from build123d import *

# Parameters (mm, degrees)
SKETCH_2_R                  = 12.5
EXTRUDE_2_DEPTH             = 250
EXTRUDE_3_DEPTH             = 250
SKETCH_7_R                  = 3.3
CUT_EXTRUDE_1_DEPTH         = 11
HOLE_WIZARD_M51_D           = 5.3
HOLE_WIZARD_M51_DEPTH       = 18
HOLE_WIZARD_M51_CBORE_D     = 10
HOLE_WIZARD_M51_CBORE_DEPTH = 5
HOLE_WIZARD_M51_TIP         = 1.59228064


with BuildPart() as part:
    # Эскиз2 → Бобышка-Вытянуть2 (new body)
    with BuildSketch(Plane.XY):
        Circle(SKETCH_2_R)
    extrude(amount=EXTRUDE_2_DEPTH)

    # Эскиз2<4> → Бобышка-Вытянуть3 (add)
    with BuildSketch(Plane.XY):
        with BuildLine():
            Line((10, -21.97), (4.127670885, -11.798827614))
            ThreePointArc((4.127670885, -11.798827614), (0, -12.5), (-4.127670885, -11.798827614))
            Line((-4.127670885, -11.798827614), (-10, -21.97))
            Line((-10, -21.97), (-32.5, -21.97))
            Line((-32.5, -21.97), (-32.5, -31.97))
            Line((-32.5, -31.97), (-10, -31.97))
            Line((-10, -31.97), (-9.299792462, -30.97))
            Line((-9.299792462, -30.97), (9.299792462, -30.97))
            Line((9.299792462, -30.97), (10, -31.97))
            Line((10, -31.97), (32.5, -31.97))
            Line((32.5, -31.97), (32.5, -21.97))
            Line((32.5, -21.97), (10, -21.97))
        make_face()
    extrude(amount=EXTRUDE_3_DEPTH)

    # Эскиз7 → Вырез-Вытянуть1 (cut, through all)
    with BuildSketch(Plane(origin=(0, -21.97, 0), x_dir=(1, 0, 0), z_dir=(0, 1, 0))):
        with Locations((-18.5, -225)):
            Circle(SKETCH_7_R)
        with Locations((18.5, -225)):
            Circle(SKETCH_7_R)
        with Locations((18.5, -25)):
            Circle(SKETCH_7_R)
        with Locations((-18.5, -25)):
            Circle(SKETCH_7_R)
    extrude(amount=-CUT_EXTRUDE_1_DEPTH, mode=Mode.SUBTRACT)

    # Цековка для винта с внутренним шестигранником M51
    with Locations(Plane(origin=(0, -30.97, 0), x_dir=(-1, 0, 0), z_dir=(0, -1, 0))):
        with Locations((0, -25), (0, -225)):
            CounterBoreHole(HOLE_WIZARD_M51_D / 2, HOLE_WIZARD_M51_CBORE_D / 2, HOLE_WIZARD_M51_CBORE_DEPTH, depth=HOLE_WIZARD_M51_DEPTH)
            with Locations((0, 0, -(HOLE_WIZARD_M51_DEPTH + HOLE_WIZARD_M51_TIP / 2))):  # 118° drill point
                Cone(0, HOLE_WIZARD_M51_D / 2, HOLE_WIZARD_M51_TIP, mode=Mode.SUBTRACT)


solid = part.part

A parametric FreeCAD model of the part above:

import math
import FreeCAD as App
import Part
import Sketcher

V = App.Vector
Q = App.Units.Quantity

doc = App.newDocument("Part")
params = doc.addObject("Spreadsheet::Sheet", "Params")
for row, (alias, value) in enumerate([
    ("sketch1_diameter", "25 mm"),
    ("pad1_length", "250 mm"),
    ("sketch2_radius", "12.5 mm"),
    ("sketch2_height", "10 mm"),
    ("sketch2_width", "22.5 mm"),
    ("pad2_length", "250 mm"),
    ("sketch3_diameter", "6.6 mm"),
    ("sketch4_diameter", "5.3 mm"),
    ("hole_diameter", "5.3 mm"),
    ("hole_depth", "18 mm"),
    ("hole_cbore_diameter", "10 mm"),
    ("hole_cbore_depth", "5 mm"),
], start=1):
    params.set(f"A{row}", alias)
    params.set(f"B{row}", "=" + value)
    params.setAlias(f"B{row}", alias)

body = doc.addObject("PartDesign::Body", "Body")

sketch1 = body.newObject("Sketcher::SketchObject", "Sketch")
sketch1.AttachmentSupport = (doc.getObject("XY_Plane"), [""])
sketch1.MapMode = "FlatFace"
sketch1.addGeometry(Part.Circle(V(0, 0, 0), V(0, 0, 1), 12.5), False)
sketch1.addConstraint(Sketcher.Constraint("Coincident", 0, 3, -1, 1))
sketch1.addConstraint(Sketcher.Constraint("Diameter", 0, Q("25 mm")))
sketch1.setExpression("Constraints[1]", "Params.sketch1_diameter")
pad1 = body.newObject("PartDesign::Pad", "Pad")
pad1.Profile = sketch1
pad1.setExpression("Length", "Params.pad1_length")

sketch2 = body.newObject("Sketcher::SketchObject", "Sketch001")
sketch2.AttachmentSupport = (doc.getObject("XY_Plane"), [""])
sketch2.MapMode = "FlatFace"
sketch2.addGeometry(Part.LineSegment(V(10, -21.97, 0), V(4.127671, -11.798828, 0)), False)
sketch2.addGeometry(Part.ArcOfCircle(Part.Circle(V(0, 0, 0), V(0, 0, 1), 12.5), math.radians(-109.281745), math.radians(-70.718255)), False)
sketch2.addGeometry(Part.LineSegment(V(-4.127671, -11.798828, 0), V(-10, -21.97, 0)), False)
sketch2.addGeometry(Part.LineSegment(V(-10, -21.97, 0), V(-32.5, -21.97, 0)), False)
sketch2.addGeometry(Part.LineSegment(V(-32.5, -21.97, 0), V(-32.5, -31.97, 0)), False)
sketch2.addGeometry(Part.LineSegment(V(-32.5, -31.97, 0), V(-10, -31.97, 0)), False)
sketch2.addGeometry(Part.LineSegment(V(-10, -31.97, 0), V(-9.299792, -30.97, 0)), False)
sketch2.addGeometry(Part.LineSegment(V(-9.299792, -30.97, 0), V(9.299792, -30.97, 0)), False)
sketch2.addGeometry(Part.LineSegment(V(9.299792, -30.97, 0), V(10, -31.97, 0)), False)
sketch2.addGeometry(Part.LineSegment(V(10, -31.97, 0), V(32.5, -31.97, 0)), False)
sketch2.addGeometry(Part.LineSegment(V(32.5, -31.97, 0), V(32.5, -21.97, 0)), False)
sketch2.addGeometry(Part.LineSegment(V(32.5, -21.97, 0), V(10, -21.97, 0)), False)
sketch2.addConstraint(Sketcher.Constraint("Coincident", 0, 2, 1, 2))
sketch2.addConstraint(Sketcher.Constraint("Coincident", 1, 1, 2, 1))
sketch2.addConstraint(Sketcher.Constraint("Coincident", 2, 2, 3, 1))
sketch2.addConstraint(Sketcher.Constraint("Coincident", 3, 2, 4, 1))
sketch2.addConstraint(Sketcher.Constraint("Coincident", 4, 2, 5, 1))
sketch2.addConstraint(Sketcher.Constraint("Coincident", 5, 2, 6, 1))
sketch2.addConstraint(Sketcher.Constraint("Coincident", 6, 2, 7, 1))
sketch2.addConstraint(Sketcher.Constraint("Coincident", 7, 2, 8, 1))
sketch2.addConstraint(Sketcher.Constraint("Coincident", 8, 2, 9, 1))
sketch2.addConstraint(Sketcher.Constraint("Coincident", 9, 2, 10, 1))
sketch2.addConstraint(Sketcher.Constraint("Coincident", 10, 2, 11, 1))
sketch2.addConstraint(Sketcher.Constraint("Coincident", 11, 2, 0, 1))
sketch2.addConstraint(Sketcher.Constraint("Horizontal", 3))
sketch2.addConstraint(Sketcher.Constraint("Vertical", 4))
sketch2.addConstraint(Sketcher.Constraint("Horizontal", 5))
sketch2.addConstraint(Sketcher.Constraint("Horizontal", 7))
sketch2.addConstraint(Sketcher.Constraint("Horizontal", 9))
sketch2.addConstraint(Sketcher.Constraint("Vertical", 10))
sketch2.addConstraint(Sketcher.Constraint("Horizontal", 11))
sketch2.addConstraint(Sketcher.Constraint("Coincident", 1, 3, -1, 1))
sketch2.addConstraint(Sketcher.Constraint("Symmetric", 5, 2, 8, 2, -2))
sketch2.addConstraint(Sketcher.Constraint("Symmetric", 3, 2, 10, 2, -2))
sketch2.addConstraint(Sketcher.Constraint("Horizontal", 0, 2, 1, 1))
sketch2.addConstraint(Sketcher.Constraint("Vertical", 2, 2, 5, 2))
sketch2.addConstraint(Sketcher.Constraint("Vertical", 8, 2, 11, 2))
sketch2.addConstraint(Sketcher.Constraint("Equal", 6, 8))
sketch2.addConstraint(Sketcher.Constraint("Radius", 1, Q("12.5 mm")))
sketch2.addConstraint(Sketcher.Constraint("DistanceY", 4, 2, 4, 1, Q("10 mm")))
sketch2.addConstraint(Sketcher.Constraint("Angle", 0, Q("120 deg")))
sketch2.addConstraint(Sketcher.Constraint("Angle", 6, Q("55 deg")))
sketch2.addConstraint(Sketcher.Constraint("DistanceX", 3, 2, 3, 1, Q("22.5 mm")))
sketch2.addConstraint(Sketcher.Constraint("DistanceX", 2, 2, -1, 1, Q("10 mm")))
sketch2.addConstraint(Sketcher.Constraint("DistanceY", 5, 2, 6, 2, Q("1 mm")))
sketch2.addConstraint(Sketcher.Constraint("DistanceY", 2, 2, -1, 1, Q("21.97 mm")))
sketch2.setExpression("Constraints[26]", "Params.sketch2_radius")
sketch2.setExpression("Constraints[27]", "Params.sketch2_height")
sketch2.setExpression("Constraints[30]", "Params.sketch2_width")
pad2 = body.newObject("PartDesign::Pad", "Pad001")
pad2.Profile = sketch2
pad2.setExpression("Length", "Params.pad2_length")

sketch3 = body.newObject("Sketcher::SketchObject", "Sketch002")
sketch3.AttachmentSupport = (doc.getObject("XZ_Plane"), [""])
sketch3.MapMode = "FlatFace"
sketch3.AttachmentOffset = App.Placement(V(0, 0, 21.97), App.Rotation())
sketch3.addGeometry(Part.Circle(V(-18.5, 225, 0), V(0, 0, 1), 3.3), False)
sketch3.addGeometry(Part.Circle(V(18.5, 225, 0), V(0, 0, 1), 3.3), False)
sketch3.addGeometry(Part.Circle(V(18.5, 25, 0), V(0, 0, 1), 3.3), False)
sketch3.addGeometry(Part.Circle(V(-18.5, 25, 0), V(0, 0, 1), 3.3), False)
sketch3.addConstraint(Sketcher.Constraint("Equal", 0, 1))
sketch3.addConstraint(Sketcher.Constraint("Equal", 1, 2))
sketch3.addConstraint(Sketcher.Constraint("Equal", 2, 3))
sketch3.addConstraint(Sketcher.Constraint("Symmetric", 0, 3, 1, 3, -2))
sketch3.addConstraint(Sketcher.Constraint("Symmetric", 2, 3, 3, 3, -2))
sketch3.addConstraint(Sketcher.Constraint("Vertical", 1, 3, 2, 3))
sketch3.addConstraint(Sketcher.Constraint("Diameter", 0, Q("6.6 mm")))
sketch3.addConstraint(Sketcher.Constraint("DistanceY", -1, 1, 0, 3, Q("225 mm")))
sketch3.addConstraint(Sketcher.Constraint("DistanceY", -1, 1, 2, 3, Q("25 mm")))
sketch3.addConstraint(Sketcher.Constraint("DistanceX", 0, 3, 1, 3, Q("37 mm")))
sketch3.setExpression("Constraints[6]", "Params.sketch3_diameter")
pocket1 = body.newObject("PartDesign::Pocket", "Pocket")
pocket1.Profile = sketch3
pocket1.Type = "ThroughAll"
pocket1.Reversed = True

sketch4 = body.newObject("Sketcher::SketchObject", "Sketch003")
sketch4.AttachmentSupport = (doc.getObject("XZ_Plane"), [""])
sketch4.MapMode = "FlatFace"
sketch4.AttachmentOffset = App.Placement(V(0, 0, 30.97), App.Rotation())
sketch4.addGeometry(Part.Circle(V(0, 25, 0), V(0, 0, 1), 2.65), False)
sketch4.addGeometry(Part.Circle(V(0, 225, 0), V(0, 0, 1), 2.65), False)
sketch4.addConstraint(Sketcher.Constraint("Equal", 0, 1))
sketch4.addConstraint(Sketcher.Constraint("PointOnObject", 0, 3, -2))
sketch4.addConstraint(Sketcher.Constraint("PointOnObject", 1, 3, -2))
sketch4.addConstraint(Sketcher.Constraint("Diameter", 0, Q("5.3 mm")))
sketch4.addConstraint(Sketcher.Constraint("DistanceY", -1, 1, 0, 3, Q("25 mm")))
sketch4.addConstraint(Sketcher.Constraint("DistanceY", -1, 1, 1, 3, Q("225 mm")))
sketch4.setExpression("Constraints[3]", "Params.sketch4_diameter")
doc.recompute()
hole = body.newObject("PartDesign::Hole", "Hole")
hole.Profile = sketch4
hole.ThreadType = "None"
hole.setExpression("Diameter", "Params.hole_diameter")
hole.DepthType = "Dimension"
hole.setExpression("Depth", "Params.hole_depth")
hole.DrillPoint = "Angled"
hole.DrillPointAngle = 118
hole.HoleCutType = "Counterbore"
hole.setExpression("HoleCutDiameter", "Params.hole_cbore_diameter")
hole.setExpression("HoleCutDepth", "Params.hole_cbore_depth")

doc.recompute()
